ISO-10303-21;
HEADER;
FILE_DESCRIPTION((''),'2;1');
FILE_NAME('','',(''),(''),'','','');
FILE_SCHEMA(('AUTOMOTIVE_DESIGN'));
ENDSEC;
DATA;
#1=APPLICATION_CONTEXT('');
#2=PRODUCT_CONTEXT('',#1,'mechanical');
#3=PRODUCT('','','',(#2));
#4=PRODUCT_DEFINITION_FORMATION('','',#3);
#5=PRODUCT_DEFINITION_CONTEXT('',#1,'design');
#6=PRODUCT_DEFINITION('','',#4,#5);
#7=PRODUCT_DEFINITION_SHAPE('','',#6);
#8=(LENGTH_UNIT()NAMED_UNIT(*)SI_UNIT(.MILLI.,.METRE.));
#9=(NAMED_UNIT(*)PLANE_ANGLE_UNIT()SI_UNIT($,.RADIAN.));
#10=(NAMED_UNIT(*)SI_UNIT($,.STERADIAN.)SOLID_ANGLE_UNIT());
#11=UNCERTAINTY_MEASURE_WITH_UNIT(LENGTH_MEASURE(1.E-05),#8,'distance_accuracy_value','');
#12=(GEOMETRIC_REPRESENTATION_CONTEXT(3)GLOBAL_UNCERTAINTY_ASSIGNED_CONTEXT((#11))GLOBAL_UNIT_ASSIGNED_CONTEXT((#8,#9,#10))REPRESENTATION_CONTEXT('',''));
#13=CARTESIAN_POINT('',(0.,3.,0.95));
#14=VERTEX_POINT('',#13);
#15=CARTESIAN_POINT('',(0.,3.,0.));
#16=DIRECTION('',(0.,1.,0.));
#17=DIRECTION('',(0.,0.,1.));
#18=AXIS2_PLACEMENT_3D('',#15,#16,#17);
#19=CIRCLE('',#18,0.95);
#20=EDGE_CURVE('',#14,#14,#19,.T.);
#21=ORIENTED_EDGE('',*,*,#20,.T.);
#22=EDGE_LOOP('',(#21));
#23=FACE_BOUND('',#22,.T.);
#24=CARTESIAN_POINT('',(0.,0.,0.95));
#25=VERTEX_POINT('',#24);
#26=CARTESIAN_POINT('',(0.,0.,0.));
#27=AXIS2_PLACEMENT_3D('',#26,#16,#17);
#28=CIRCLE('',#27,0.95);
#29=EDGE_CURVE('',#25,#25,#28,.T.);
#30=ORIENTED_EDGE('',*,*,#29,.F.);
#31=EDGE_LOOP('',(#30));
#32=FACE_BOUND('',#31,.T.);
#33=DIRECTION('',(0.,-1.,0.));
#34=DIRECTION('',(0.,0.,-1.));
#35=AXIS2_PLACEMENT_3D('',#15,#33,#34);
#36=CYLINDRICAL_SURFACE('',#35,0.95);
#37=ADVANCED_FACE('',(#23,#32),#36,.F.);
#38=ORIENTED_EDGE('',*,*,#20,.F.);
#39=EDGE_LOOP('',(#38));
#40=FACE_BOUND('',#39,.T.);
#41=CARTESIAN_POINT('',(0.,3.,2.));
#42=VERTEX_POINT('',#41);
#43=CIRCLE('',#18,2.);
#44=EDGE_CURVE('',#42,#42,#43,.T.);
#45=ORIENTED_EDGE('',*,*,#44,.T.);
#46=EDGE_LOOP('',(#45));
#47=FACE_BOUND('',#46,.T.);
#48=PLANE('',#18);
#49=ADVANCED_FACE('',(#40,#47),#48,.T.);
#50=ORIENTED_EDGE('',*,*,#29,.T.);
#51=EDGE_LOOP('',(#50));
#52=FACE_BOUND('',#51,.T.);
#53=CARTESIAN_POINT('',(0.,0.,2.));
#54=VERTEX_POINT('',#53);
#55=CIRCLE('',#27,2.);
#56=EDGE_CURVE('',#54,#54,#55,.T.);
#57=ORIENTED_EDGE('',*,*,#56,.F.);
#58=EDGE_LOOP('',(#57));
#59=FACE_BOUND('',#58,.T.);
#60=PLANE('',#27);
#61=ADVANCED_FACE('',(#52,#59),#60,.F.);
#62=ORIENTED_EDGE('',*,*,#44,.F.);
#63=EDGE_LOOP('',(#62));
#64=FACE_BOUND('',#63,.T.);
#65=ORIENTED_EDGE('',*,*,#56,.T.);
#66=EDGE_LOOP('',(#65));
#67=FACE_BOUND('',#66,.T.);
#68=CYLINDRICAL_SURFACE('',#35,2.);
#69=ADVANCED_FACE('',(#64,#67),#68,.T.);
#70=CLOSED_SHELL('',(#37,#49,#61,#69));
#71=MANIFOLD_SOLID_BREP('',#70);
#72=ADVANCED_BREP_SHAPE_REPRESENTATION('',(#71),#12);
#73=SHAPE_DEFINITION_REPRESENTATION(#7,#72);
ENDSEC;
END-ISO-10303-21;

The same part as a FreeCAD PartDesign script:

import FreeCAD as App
import Part
import Sketcher
from FreeCAD import Vector

doc = App.newDocument("Part")
params = doc.addObject("Spreadsheet::Sheet", "Params")
for row, (alias, value) in enumerate([
    ("sketch1_diameter", "4 mm"),
    ("sketch1_diameter2", "1.9 mm"),
    ("pad1_length", "3 mm"),
], start=1):
    params.set(f"A{row}", alias)
    params.set(f"B{row}", "=" + value)
    params.setAlias(f"B{row}", alias)

body = doc.addObject("PartDesign::Body", "Body")

sketch1 = body.newObject("Sketcher::SketchObject", "Sketch")
sketch1.AttachmentSupport = (doc.getObject("XZ_Plane"), [""])
sketch1.MapMode = "FlatFace"
sketch1.addGeometry(Part.Circle(Vector(0, 0, 0), Vector(0, 0, 1), 2), False)
sketch1.addGeometry(Part.Circle(Vector(0, 0, 0), Vector(0, 0, 1), 0.9), False)
sketch1.addConstraint(Sketcher.Constraint("Coincident", 0, 3, -1, 1))
sketch1.addConstraint(Sketcher.Constraint("Coincident", 1, 3, -1, 1))
sketch1.addConstraint(Sketcher.Constraint("Diameter", 0, 4.0))
sketch1.addConstraint(Sketcher.Constraint("Diameter", 1, 1.9))
sketch1.setExpression("Constraints[2]", "Params.sketch1_diameter")
sketch1.setExpression("Constraints[3]", "Params.sketch1_diameter2")
pad1 = body.newObject("PartDesign::Pad", "Pad")
pad1.Profile = sketch1
pad1.setExpression("Length", "Params.pad1_length")
pad1.Reversed = True

doc.recompute()
